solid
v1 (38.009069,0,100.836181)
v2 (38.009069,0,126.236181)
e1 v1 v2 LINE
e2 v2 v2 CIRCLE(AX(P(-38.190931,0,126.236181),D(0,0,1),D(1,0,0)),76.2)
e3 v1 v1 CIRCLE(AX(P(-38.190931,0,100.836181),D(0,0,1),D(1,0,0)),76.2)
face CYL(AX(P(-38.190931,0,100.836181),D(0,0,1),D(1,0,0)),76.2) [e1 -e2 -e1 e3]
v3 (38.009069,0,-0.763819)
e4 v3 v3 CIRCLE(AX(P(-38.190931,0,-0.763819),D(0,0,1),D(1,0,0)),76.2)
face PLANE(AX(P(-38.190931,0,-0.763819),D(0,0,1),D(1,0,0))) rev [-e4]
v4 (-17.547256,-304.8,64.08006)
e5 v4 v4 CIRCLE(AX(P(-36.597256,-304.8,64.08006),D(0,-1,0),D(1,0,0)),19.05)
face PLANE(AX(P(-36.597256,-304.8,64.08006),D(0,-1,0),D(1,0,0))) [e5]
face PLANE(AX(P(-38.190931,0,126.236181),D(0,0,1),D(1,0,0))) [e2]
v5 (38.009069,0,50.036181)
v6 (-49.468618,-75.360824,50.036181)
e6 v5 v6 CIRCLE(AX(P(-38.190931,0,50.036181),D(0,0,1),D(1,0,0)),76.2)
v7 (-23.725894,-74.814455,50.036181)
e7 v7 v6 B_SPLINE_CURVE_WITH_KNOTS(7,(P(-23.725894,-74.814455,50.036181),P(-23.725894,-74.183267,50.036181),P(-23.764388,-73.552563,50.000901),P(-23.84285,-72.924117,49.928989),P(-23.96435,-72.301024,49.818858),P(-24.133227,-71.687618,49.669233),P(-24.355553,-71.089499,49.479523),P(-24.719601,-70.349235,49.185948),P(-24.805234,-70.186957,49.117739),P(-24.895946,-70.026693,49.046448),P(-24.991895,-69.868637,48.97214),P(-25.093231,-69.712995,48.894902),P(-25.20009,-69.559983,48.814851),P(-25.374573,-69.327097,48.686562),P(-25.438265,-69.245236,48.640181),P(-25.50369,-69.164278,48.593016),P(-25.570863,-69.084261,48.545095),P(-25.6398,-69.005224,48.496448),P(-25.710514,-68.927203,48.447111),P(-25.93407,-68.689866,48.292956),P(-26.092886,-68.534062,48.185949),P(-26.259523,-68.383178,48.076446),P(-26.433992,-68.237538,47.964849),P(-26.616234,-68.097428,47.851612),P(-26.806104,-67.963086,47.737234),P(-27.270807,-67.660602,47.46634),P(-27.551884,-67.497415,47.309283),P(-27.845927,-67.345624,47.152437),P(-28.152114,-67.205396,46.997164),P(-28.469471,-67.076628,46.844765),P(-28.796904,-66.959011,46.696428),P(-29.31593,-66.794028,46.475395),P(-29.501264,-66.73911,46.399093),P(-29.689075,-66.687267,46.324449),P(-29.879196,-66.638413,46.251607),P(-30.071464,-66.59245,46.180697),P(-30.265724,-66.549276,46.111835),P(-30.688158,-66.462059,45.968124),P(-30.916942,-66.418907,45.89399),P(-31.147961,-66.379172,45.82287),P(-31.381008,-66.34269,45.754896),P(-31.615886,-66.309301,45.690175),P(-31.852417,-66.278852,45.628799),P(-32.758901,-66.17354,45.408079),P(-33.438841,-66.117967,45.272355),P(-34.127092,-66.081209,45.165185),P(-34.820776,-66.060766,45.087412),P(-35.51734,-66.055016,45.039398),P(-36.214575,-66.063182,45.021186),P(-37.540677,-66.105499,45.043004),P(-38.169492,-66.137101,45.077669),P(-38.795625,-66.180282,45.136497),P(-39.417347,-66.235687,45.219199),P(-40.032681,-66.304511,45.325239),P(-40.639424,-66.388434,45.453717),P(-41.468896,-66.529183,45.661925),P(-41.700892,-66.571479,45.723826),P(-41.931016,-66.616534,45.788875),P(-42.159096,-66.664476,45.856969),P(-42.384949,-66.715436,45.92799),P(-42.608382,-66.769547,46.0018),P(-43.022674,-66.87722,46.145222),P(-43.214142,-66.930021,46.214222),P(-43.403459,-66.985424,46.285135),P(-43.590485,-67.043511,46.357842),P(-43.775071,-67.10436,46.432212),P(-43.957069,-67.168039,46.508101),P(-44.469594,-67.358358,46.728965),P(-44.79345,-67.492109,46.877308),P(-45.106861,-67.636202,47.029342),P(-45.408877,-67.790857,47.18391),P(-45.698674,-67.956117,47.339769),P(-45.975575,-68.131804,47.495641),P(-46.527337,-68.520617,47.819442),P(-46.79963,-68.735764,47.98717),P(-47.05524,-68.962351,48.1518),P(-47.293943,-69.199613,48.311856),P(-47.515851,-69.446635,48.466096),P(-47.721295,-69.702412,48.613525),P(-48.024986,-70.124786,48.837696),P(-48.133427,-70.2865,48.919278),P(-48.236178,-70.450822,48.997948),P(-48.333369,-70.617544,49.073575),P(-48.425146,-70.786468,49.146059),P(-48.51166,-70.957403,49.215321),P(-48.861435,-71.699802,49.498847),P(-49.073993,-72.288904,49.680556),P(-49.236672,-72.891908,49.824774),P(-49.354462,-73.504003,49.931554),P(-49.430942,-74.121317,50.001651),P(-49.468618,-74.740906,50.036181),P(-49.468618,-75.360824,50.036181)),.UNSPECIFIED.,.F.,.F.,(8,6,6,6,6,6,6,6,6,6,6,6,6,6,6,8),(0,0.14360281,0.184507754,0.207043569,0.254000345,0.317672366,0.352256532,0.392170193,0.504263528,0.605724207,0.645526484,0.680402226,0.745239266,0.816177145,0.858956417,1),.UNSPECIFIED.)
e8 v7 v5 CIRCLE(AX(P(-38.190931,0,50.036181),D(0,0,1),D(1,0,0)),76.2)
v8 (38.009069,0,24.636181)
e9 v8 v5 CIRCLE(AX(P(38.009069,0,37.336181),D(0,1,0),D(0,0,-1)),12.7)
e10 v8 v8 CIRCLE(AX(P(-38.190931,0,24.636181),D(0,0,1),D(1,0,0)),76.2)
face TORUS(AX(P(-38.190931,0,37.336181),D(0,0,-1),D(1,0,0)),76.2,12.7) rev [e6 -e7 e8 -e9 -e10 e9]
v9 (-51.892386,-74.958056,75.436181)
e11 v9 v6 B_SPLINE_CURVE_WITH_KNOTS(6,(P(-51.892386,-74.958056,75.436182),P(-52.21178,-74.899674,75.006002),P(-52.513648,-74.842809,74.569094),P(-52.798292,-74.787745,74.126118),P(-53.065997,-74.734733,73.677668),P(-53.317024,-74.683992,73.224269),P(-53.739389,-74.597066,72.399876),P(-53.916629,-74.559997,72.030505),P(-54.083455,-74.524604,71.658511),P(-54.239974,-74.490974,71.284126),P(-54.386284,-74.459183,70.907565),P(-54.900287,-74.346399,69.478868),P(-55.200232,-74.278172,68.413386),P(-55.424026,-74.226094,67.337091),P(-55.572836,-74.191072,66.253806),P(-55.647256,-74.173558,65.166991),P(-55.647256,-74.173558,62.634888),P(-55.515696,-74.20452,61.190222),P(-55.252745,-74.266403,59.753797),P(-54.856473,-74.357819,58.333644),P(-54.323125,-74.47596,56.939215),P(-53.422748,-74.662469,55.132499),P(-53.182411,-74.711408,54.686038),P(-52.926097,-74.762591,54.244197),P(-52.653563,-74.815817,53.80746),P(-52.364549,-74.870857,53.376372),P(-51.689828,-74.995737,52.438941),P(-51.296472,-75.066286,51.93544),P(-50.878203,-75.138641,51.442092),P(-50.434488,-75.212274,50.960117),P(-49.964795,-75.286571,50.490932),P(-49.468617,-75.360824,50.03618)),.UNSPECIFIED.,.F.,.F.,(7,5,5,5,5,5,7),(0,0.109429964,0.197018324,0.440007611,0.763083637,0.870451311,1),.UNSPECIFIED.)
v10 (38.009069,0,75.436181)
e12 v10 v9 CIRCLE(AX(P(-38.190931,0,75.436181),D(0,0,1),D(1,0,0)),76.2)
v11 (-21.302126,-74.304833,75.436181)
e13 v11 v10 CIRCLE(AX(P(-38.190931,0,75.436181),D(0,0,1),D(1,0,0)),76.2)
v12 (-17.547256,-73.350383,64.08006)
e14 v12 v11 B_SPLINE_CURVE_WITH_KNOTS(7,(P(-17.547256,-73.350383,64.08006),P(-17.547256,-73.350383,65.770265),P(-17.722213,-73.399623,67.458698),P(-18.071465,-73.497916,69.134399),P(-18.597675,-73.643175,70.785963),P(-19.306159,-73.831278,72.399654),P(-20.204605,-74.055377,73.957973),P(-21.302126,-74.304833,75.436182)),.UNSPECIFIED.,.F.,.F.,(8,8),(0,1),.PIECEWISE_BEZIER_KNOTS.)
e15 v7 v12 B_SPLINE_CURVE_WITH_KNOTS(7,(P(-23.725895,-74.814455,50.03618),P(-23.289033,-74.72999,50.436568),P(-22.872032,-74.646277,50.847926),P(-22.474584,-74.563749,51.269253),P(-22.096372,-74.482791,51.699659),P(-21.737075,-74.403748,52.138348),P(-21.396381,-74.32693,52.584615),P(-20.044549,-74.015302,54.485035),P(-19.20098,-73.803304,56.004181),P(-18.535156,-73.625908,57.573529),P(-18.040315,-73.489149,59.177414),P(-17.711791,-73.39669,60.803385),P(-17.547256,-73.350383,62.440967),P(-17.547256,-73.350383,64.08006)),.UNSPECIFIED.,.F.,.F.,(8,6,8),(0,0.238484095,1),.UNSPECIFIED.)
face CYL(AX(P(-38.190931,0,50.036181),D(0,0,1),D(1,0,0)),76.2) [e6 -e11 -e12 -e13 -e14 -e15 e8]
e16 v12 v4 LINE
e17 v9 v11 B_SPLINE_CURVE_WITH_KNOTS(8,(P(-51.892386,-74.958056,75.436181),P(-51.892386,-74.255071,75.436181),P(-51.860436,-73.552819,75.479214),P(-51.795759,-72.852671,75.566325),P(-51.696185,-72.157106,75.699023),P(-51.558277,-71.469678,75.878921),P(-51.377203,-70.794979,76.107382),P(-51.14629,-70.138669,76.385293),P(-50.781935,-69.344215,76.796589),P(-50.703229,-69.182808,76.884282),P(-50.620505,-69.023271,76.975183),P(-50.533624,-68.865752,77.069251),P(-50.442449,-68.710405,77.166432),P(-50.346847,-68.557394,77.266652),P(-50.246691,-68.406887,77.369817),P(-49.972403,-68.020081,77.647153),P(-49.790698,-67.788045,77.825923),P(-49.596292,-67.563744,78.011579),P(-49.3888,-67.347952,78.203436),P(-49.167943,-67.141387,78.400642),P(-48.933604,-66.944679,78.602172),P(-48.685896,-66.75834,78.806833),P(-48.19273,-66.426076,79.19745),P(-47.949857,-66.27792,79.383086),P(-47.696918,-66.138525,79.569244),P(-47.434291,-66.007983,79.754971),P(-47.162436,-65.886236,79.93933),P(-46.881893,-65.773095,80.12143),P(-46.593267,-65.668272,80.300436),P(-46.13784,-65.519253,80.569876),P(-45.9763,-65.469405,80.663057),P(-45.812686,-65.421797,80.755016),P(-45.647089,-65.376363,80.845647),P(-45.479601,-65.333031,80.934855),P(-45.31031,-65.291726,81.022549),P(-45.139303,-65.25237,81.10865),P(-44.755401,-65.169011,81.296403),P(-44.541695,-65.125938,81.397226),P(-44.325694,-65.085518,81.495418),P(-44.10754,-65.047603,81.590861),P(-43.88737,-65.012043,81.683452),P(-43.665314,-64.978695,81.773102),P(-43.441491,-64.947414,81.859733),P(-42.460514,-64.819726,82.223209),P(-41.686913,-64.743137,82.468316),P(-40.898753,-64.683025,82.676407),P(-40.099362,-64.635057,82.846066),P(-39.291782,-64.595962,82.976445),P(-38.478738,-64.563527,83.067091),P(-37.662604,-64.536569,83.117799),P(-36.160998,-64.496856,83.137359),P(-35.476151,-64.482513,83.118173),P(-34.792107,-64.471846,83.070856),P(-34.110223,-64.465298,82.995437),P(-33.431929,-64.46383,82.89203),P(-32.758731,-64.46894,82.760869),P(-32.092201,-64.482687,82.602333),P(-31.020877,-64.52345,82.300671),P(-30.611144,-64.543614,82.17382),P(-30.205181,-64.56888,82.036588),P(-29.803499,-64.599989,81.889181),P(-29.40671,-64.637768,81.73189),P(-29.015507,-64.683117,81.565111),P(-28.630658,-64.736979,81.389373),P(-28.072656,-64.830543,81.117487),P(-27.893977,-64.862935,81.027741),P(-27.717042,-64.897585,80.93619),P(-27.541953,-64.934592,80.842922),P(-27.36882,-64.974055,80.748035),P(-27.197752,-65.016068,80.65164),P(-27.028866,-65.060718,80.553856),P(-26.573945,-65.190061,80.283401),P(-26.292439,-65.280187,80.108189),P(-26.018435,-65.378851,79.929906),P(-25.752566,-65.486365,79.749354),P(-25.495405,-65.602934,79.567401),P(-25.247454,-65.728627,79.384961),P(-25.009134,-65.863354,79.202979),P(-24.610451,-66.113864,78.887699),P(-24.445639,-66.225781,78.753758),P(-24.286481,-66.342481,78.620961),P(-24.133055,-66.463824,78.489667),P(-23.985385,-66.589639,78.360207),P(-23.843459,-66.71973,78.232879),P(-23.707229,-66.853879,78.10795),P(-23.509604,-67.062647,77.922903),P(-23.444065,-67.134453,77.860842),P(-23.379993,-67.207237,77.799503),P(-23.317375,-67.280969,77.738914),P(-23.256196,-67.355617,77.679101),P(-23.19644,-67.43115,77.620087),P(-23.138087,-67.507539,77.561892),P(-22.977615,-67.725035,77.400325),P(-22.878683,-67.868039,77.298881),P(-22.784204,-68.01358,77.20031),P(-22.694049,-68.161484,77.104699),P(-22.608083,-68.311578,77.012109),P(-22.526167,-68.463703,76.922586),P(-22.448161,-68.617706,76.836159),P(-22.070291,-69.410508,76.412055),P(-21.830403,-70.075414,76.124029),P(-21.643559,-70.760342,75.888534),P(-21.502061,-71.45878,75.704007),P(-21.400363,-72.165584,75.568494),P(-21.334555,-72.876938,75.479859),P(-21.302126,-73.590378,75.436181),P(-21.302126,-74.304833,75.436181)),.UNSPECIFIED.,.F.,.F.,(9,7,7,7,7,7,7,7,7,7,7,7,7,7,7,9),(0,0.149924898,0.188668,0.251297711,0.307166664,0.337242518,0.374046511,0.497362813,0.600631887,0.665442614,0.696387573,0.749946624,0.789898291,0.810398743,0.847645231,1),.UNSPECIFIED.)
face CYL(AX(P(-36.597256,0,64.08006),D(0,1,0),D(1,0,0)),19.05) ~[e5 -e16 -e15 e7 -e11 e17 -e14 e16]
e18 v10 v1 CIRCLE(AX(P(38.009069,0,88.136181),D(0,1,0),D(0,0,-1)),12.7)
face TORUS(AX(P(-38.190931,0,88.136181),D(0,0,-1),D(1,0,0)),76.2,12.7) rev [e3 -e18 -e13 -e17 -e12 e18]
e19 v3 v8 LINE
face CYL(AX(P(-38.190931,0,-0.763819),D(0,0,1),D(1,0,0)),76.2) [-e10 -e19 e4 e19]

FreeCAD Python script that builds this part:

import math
import FreeCAD as App
import Part
import Sketcher
Q = App.Units.Quantity

doc = App.newDocument("Part")
body = doc.addObject("PartDesign::Body", "Body")

# Sketch on XZ plane
sketch1 = body.newObject("Sketcher::SketchObject", "Sketch")
sketch1.AttachmentSupport = (doc.getObject("XZ_Plane"), [""])
sketch1.MapMode = "FlatFace"
sketch1.addGeometry([
    Part.LineSegment(App.Vector(-38.190931, -0.763819, 0), App.Vector(38.009069, -0.763819, 0)),  # 0
    Part.LineSegment(App.Vector(38.009069, -0.763819, 0), App.Vector(38.009069, 24.636181, 0)),  # 1
    Part.ArcOfCircle(Part.Circle(App.Vector(38.009069, 37.336181, 0), App.Vector(0, 0, 1), 12.7), math.radians(90), math.radians(270)),  # 2
    Part.LineSegment(App.Vector(38.009069, 50.036181, 0), App.Vector(38.009069, 75.436181, 0)),  # 3
    Part.ArcOfCircle(Part.Circle(App.Vector(38.009069, 88.136181, 0), App.Vector(0, 0, 1), 12.7), math.radians(90), math.radians(270)),  # 4
    Part.LineSegment(App.Vector(38.009069, 100.836181, 0), App.Vector(38.009069, 126.236181, 0)),  # 5
    Part.LineSegment(App.Vector(38.009069, 126.236181, 0), App.Vector(-38.190931, 126.236181, 0)),  # 6
    Part.LineSegment(App.Vector(-38.190931, 126.236181, 0), App.Vector(-38.190931, -0.763819, 0)),  # 7
], False)
sketch1.addGeometry(Part.LineSegment(App.Vector(-38.190931, -0.763819, 0), App.Vector(-38.190931, 126.236181, 0)), True)  # axis
sketch1.addConstraint([
    Sketcher.Constraint("Coincident", 0, 2, 1, 1),
    Sketcher.Constraint("Coincident", 1, 2, 2, 2),
    Sketcher.Constraint("Coincident", 2, 1, 3, 1),
    Sketcher.Constraint("Coincident", 3, 2, 4, 2),
    Sketcher.Constraint("Coincident", 4, 1, 5, 1),
    Sketcher.Constraint("Coincident", 5, 2, 6, 1),
    Sketcher.Constraint("Coincident", 6, 2, 7, 1),
    Sketcher.Constraint("Coincident", 7, 2, 0, 1),
    Sketcher.Constraint("Horizontal", 0),
    Sketcher.Constraint("Vertical", 1),
    Sketcher.Constraint("Vertical", 3),
    Sketcher.Constraint("Vertical", 5),
    Sketcher.Constraint("Horizontal", 6),
    Sketcher.Constraint("Vertical", 7),
    Sketcher.Constraint("Vertical", 8),
    Sketcher.Constraint("Coincident", 8, 1, 7, 2),
    Sketcher.Constraint("Equal", 2, 4),
    Sketcher.Constraint("Horizontal", 5, 2, 8, 2),
    Sketcher.Constraint("Vertical", 2, 3, 4, 3),
    Sketcher.Constraint("Vertical", 4, 3, 0, 2),
    Sketcher.Constraint("Vertical", 1, 2, 2, 1),
    Sketcher.Constraint("Vertical", 3, 2, 4, 1),
    Sketcher.Constraint("Equal", 1, 3),
    Sketcher.Constraint("Equal", 3, 5),
    Sketcher.Constraint("Radius", 2, Q("0.5 in")),
    Sketcher.Constraint("DistanceX", 0, 1, 0, 2, Q("3 in")),
    Sketcher.Constraint("DistanceY", 1, 1, 1, 2, Q("1 in")),
    Sketcher.Constraint("DistanceX", -1, 1, 2, 3, 38.009069),
    Sketcher.Constraint("DistanceY", -1, 1, 2, 3, 37.336181),
])
revolution = body.newObject("PartDesign::Revolution", "Revolution")
revolution.Profile = sketch1
revolution.ReferenceAxis = (sketch1, ["Axis0"])
revolution.Angle = 360

# Sketch on XZ plane
sketch2 = body.newObject("Sketcher::SketchObject", "Sketch001")
sketch2.AttachmentSupport = (doc.getObject("XZ_Plane"), [""])
sketch2.MapMode = "FlatFace"
sketch2.addGeometry(Part.Circle(App.Vector(-36.597256, 64.08006, 0), App.Vector(0, 0, 1), 19.05), False)
sketch2.addConstraint([
    Sketcher.Constraint("Diameter", 0, Q("1.5 in")),
    Sketcher.Constraint("DistanceY", -1, 1, 0, 3, 64.08006),
    Sketcher.Constraint("DistanceX", 0, 3, -1, 1, 36.597256),
])
pad1 = body.newObject("PartDesign::Pad", "Pad")
pad1.Profile = sketch2
pad1.Length = Q("12 in")

doc.recompute()
